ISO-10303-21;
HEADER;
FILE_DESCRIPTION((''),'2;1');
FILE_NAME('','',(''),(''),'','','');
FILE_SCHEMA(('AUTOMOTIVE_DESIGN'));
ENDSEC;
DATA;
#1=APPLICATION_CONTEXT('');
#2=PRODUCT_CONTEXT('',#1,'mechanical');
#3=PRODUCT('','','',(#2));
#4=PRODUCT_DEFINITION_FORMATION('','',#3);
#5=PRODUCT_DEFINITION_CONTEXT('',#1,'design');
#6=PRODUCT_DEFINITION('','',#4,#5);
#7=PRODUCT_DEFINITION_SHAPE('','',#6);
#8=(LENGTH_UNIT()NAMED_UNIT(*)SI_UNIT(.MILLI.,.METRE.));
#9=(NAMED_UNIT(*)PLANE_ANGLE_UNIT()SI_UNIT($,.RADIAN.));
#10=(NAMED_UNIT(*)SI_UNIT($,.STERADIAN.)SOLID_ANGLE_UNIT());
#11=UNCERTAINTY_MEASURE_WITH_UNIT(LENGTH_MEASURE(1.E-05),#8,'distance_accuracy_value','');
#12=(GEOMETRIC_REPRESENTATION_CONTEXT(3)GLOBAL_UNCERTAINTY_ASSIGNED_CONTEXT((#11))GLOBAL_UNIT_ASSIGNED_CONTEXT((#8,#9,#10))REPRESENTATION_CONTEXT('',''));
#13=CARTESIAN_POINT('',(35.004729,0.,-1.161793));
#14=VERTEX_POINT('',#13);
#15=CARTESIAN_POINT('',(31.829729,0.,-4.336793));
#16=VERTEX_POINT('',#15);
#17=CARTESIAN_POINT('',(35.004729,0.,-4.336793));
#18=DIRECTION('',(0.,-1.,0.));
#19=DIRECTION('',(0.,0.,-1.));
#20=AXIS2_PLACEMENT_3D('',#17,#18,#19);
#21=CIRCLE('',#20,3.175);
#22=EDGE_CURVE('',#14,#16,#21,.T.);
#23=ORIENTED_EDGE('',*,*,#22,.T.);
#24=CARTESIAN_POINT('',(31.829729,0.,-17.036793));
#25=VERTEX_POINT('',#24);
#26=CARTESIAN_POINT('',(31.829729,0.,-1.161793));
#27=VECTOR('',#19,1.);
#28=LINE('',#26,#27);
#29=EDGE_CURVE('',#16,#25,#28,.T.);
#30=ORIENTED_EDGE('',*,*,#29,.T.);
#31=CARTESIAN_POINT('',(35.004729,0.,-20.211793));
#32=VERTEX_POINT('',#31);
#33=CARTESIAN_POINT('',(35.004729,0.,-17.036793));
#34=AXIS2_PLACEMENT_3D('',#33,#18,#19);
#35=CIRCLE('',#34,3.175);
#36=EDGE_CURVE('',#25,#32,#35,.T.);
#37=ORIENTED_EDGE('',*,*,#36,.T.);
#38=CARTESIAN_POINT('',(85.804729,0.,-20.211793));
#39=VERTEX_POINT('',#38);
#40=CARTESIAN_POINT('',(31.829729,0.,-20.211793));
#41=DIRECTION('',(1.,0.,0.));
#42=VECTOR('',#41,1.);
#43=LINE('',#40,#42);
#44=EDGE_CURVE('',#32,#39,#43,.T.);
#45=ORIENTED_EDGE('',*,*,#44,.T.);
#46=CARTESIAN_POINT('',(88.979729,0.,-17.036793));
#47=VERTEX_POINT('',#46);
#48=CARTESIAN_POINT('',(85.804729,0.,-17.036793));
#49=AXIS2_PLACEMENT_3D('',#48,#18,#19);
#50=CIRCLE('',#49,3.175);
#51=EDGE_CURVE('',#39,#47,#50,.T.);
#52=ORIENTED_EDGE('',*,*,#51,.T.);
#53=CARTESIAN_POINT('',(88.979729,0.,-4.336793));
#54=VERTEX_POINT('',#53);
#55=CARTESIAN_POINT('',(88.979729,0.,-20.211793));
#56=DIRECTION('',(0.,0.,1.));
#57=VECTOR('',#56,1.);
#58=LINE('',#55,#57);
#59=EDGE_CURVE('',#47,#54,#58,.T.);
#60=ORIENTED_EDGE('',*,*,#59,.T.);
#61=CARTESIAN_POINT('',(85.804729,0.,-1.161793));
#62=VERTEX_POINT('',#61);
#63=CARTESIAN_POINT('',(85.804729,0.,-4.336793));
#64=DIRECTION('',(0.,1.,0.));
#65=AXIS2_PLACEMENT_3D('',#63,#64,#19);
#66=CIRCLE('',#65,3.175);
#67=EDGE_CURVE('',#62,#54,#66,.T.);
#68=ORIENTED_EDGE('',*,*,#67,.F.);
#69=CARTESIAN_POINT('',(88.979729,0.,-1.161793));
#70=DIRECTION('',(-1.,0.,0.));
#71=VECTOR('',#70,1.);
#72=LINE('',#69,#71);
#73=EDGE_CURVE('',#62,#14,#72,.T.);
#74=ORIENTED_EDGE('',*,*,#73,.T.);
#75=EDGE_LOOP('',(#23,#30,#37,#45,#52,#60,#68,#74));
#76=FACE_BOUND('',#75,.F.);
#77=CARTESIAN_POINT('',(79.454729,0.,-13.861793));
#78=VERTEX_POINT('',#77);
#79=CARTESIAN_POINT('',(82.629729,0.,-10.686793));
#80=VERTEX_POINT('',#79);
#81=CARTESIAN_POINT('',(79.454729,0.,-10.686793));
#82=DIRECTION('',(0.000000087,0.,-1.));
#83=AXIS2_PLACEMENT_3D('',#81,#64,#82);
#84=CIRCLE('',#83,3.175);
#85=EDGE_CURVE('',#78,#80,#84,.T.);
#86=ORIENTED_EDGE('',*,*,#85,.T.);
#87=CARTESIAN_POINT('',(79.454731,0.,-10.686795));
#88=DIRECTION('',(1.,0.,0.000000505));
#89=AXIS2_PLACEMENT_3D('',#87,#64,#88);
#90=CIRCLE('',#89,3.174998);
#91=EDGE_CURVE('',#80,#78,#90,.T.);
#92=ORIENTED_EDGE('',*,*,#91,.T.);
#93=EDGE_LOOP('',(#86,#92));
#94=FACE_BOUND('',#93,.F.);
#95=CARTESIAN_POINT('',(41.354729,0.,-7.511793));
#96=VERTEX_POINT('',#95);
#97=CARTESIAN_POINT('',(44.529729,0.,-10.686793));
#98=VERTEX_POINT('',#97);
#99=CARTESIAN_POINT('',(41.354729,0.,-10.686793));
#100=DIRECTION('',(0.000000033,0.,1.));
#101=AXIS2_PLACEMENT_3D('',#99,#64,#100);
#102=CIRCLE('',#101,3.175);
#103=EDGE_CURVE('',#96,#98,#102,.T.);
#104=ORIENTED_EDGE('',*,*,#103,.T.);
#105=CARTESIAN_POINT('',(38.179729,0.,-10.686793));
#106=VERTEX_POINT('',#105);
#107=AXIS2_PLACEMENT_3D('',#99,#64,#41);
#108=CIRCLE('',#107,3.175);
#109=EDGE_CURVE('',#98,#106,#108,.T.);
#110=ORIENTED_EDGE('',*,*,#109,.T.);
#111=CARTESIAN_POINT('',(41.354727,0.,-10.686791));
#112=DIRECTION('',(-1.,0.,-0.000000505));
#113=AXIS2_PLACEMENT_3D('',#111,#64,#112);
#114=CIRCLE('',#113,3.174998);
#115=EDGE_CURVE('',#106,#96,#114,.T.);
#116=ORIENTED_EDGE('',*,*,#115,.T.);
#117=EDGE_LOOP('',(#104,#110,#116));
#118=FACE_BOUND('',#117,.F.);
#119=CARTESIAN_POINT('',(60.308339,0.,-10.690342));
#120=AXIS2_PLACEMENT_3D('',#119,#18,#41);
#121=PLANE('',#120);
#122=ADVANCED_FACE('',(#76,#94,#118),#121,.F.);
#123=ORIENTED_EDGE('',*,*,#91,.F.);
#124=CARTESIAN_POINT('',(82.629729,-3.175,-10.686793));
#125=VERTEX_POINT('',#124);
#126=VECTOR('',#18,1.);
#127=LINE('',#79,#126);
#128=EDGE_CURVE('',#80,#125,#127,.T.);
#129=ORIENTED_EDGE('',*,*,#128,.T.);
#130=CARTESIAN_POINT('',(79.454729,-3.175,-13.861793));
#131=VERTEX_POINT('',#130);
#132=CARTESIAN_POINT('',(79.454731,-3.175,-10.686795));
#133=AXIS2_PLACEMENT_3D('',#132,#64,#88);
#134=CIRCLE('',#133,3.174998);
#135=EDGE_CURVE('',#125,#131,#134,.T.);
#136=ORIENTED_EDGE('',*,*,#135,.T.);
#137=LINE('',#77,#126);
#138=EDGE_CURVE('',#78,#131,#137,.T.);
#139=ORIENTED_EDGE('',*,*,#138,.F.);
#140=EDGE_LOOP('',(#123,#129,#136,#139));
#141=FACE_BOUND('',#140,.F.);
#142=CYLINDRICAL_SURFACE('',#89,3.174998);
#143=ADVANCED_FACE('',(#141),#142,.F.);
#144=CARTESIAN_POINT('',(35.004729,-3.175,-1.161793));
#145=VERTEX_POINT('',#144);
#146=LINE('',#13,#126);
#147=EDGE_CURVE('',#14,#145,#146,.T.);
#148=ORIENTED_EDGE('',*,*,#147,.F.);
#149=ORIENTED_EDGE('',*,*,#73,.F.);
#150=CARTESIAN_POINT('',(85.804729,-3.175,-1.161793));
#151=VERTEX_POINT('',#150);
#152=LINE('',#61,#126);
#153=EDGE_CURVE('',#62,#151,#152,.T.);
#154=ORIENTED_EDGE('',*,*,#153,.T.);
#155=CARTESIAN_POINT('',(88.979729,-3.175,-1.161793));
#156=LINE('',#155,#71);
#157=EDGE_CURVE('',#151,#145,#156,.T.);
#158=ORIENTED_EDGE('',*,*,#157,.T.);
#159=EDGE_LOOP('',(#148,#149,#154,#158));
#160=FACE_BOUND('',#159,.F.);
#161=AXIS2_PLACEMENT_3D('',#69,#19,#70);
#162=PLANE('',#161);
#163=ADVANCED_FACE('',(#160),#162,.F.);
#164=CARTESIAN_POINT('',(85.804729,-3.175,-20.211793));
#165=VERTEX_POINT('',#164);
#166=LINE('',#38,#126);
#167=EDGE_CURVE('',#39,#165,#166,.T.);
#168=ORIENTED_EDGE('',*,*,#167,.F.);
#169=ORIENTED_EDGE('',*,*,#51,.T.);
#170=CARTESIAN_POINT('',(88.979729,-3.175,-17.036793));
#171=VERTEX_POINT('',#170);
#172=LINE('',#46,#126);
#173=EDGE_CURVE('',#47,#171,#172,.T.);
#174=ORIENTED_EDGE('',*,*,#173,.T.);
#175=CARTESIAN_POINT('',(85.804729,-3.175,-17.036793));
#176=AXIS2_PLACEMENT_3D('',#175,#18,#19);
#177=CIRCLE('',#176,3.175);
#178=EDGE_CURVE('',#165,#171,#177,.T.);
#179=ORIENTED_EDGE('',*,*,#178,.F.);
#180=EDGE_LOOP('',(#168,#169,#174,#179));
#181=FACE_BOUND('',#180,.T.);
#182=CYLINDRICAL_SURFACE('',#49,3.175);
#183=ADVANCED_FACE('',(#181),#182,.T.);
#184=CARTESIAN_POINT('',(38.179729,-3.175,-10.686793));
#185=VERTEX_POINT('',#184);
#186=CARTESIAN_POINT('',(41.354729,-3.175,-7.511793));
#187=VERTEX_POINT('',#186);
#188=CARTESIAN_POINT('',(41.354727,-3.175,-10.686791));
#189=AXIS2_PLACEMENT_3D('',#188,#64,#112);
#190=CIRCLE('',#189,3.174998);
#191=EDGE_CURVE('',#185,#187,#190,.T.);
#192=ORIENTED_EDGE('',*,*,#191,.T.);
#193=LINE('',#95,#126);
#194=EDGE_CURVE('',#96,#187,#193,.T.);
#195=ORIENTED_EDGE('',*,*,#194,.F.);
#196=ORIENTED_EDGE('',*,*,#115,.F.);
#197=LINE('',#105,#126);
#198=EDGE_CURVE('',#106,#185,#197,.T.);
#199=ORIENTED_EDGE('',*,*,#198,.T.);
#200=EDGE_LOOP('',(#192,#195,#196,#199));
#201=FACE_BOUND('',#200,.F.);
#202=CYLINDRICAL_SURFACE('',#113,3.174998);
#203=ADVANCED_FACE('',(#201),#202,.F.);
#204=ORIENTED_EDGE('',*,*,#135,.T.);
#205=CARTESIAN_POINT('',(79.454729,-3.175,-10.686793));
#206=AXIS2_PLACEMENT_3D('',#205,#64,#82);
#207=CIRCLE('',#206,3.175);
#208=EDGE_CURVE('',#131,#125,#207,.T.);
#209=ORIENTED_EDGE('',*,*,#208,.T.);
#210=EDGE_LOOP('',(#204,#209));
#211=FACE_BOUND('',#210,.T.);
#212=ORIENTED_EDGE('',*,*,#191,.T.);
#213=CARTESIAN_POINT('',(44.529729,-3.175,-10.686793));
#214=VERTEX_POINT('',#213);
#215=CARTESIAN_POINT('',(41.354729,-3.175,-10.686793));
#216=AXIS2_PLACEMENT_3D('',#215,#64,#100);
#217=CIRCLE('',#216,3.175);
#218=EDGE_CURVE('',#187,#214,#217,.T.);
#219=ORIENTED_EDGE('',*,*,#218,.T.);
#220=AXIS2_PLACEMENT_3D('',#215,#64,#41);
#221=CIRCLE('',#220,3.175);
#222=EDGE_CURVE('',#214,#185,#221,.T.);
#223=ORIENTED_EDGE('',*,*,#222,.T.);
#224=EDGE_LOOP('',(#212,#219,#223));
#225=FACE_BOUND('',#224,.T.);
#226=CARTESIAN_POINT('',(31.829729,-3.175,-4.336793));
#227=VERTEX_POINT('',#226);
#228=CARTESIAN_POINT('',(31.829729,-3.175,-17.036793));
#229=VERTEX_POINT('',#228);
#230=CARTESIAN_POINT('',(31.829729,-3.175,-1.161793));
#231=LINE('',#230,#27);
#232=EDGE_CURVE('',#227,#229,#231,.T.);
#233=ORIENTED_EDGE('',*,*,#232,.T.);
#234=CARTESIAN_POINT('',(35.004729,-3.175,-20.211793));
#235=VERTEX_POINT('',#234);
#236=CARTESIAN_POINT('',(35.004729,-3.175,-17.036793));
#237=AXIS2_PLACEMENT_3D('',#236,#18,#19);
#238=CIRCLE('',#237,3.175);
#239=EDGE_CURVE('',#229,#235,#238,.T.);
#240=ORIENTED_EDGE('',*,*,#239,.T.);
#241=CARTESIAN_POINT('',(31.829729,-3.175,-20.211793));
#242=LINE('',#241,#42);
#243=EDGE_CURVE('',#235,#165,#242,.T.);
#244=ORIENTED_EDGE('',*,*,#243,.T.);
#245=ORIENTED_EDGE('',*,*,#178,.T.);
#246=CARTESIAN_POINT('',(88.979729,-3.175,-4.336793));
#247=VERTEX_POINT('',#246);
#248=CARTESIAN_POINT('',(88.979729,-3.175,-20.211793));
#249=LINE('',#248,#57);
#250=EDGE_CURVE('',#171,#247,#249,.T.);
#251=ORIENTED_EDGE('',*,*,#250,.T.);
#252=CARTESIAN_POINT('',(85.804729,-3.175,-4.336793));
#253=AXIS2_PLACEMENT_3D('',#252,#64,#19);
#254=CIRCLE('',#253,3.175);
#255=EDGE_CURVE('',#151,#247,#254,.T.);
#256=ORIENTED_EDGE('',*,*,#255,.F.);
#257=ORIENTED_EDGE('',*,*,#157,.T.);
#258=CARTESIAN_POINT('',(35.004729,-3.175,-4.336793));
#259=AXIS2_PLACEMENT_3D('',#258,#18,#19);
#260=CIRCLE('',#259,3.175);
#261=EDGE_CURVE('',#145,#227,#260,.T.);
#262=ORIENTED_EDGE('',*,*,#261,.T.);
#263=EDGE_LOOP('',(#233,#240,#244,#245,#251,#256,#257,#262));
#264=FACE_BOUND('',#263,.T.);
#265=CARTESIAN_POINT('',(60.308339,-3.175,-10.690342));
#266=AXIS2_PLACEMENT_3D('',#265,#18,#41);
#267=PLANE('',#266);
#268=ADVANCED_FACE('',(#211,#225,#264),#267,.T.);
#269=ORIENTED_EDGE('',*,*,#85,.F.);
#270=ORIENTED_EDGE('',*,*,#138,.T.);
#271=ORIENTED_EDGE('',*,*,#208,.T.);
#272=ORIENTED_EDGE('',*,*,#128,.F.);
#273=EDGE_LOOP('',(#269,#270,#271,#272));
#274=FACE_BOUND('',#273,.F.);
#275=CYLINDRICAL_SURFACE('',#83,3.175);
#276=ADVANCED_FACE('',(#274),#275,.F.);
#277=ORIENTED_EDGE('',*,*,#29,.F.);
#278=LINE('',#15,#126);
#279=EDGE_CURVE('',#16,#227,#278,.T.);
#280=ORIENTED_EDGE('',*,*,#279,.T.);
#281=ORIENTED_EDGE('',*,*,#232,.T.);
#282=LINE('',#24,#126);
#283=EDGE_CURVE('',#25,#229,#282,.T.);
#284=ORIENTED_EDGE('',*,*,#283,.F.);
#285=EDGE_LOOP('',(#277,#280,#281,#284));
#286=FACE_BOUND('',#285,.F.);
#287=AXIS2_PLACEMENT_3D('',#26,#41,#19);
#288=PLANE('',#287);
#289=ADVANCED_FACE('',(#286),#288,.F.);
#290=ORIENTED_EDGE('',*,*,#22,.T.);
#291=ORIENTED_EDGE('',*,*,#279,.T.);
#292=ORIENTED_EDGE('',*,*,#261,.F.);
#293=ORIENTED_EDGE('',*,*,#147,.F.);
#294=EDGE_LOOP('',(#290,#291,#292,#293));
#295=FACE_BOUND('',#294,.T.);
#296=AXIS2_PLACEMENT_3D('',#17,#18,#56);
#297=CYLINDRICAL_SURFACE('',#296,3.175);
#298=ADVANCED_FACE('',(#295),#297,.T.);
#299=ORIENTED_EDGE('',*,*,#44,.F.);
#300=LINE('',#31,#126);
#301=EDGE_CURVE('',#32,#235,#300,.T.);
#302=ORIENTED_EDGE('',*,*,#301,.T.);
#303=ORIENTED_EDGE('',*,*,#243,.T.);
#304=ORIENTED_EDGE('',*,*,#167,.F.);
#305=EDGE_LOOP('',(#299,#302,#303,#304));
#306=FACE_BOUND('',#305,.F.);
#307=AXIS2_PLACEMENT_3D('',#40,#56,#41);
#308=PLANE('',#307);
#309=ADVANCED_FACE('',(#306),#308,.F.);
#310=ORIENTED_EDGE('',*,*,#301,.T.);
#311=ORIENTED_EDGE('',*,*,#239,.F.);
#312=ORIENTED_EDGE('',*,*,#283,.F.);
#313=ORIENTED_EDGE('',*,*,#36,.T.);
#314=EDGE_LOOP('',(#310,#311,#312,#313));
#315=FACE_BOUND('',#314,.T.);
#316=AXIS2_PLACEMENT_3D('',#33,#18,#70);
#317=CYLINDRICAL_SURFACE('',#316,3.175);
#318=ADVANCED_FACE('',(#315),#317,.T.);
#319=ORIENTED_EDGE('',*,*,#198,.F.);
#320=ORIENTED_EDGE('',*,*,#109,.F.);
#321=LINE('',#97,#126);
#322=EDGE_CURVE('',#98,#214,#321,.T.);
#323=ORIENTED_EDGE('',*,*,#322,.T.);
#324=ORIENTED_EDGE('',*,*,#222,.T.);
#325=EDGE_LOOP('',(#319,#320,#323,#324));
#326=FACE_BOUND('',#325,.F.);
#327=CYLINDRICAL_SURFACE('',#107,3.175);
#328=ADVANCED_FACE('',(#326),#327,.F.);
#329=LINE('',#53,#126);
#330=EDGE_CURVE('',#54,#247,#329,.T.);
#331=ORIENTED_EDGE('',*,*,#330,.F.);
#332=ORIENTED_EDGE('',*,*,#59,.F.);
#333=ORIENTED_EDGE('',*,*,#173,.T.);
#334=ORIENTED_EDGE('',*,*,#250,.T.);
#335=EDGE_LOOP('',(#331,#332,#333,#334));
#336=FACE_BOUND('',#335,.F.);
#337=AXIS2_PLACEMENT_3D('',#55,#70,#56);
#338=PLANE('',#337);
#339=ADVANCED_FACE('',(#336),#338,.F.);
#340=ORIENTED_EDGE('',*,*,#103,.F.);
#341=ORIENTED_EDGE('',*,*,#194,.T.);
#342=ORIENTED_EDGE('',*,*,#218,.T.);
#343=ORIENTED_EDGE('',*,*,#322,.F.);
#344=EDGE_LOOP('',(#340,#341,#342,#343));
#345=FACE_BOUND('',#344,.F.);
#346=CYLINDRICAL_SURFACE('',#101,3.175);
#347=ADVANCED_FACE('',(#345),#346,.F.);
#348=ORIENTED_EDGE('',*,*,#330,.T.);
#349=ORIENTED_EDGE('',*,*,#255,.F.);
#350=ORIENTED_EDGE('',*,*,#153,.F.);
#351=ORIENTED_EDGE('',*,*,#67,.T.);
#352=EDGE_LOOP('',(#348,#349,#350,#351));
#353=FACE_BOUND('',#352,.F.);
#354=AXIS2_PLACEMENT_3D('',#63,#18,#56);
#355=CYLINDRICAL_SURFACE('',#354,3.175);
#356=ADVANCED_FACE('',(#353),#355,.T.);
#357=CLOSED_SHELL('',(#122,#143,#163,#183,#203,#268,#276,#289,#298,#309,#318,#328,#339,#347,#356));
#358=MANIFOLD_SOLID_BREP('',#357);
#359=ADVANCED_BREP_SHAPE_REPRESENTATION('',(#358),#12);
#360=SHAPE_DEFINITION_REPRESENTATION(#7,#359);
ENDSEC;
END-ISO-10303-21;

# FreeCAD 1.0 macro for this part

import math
import FreeCAD as App
import Part
import Sketcher

V = App.Vector
Q = App.Units.Quantity


def edges_at(feature, points):
    """Names of the edges that pass closest to the given points."""
    edges = feature.Shape.Edges
    near = lambda p: min(range(len(edges)), key=lambda i: edges[i].distToShape(Part.Vertex(*p))[0])
    return sorted({f"Edge{near(p) + 1}" for p in points})

doc = App.newDocument("Part")
params = doc.addObject("Spreadsheet::Sheet", "Params")
for row, (alias, value) in enumerate([
    ("sketch1_radius", "0.125 in"),
    ("sketch1_width", "2.25 in"),
    ("sketch1_height", "0.75 in"),
    ("pad1_length", "0.125 in"),
    ("fillet_radius", "0.125 in"),
], start=1):
    params.set(f"A{row}", alias)
    params.set(f"B{row}", "=" + value)
    params.setAlias(f"B{row}", alias)

body = doc.addObject("PartDesign::Body", "Body")

sketch1 = body.newObject("Sketcher::SketchObject", "Sketch")
sketch1.AttachmentSupport = (doc.getObject("XZ_Plane"), [""])
sketch1.MapMode = "FlatFace"
sketch1.addGeometry(Part.LineSegment(V(89, -1.2, 0), V(31.8, -1.2, 0)), False)
sketch1.addGeometry(Part.LineSegment(V(31.8, -1.2, 0), V(31.8, -20.2, 0)), False)
sketch1.addGeometry(Part.LineSegment(V(31.8, -20.2, 0), V(89, -20.2, 0)), False)
sketch1.addGeometry(Part.LineSegment(V(89, -20.2, 0), V(89, -1.2, 0)), False)
sketch1.addGeometry(Part.ArcOfCircle(Part.Circle(V(79.5, -10.7, 0), V(0, 0, 1), 3.2), math.radians(0), math.radians(270)), False)
sketch1.addGeometry(Part.ArcOfCircle(Part.Circle(V(79.5, -10.7, 0), V(0, 0, 1), 3.2), math.radians(-90), math.radians(0)), False)
sketch1.addGeometry(Part.ArcOfCircle(Part.Circle(V(41.4, -10.7, 0), V(0, 0, 1), 3.2), math.radians(0), math.radians(90)), False)
sketch1.addGeometry(Part.ArcOfCircle(Part.Circle(V(41.4, -10.7, 0), V(0, 0, 1), 3.2), math.radians(180), math.radians(360)), False)
sketch1.addGeometry(Part.ArcOfCircle(Part.Circle(V(41.4, -10.7, 0), V(0, 0, 1), 3.2), math.radians(90), math.radians(180)), False)
sketch1.addConstraint(Sketcher.Constraint("Coincident", 0, 2, 1, 1))
sketch1.addConstraint(Sketcher.Constraint("Coincident", 1, 2, 2, 1))
sketch1.addConstraint(Sketcher.Constraint("Coincident", 2, 2, 3, 1))
sketch1.addConstraint(Sketcher.Constraint("Coincident", 3, 2, 0, 1))
sketch1.addConstraint(Sketcher.Constraint("Tangent", 4, 1, 5, 2))
sketch1.addConstraint(Sketcher.Constraint("Coincident", 5, 1, 4, 2))
sketch1.addConstraint(Sketcher.Constraint("Tangent", 6, 1, 7, 2))
sketch1.addConstraint(Sketcher.Constraint("Tangent", 7, 1, 8, 2))
sketch1.addConstraint(Sketcher.Constraint("Tangent", 8, 1, 6, 2))
sketch1.addConstraint(Sketcher.Constraint("Horizontal", 0))
sketch1.addConstraint(Sketcher.Constraint("Vertical", 1))
sketch1.addConstraint(Sketcher.Constraint("Horizontal", 2))
sketch1.addConstraint(Sketcher.Constraint("Vertical", 3))
sketch1.addConstraint(Sketcher.Constraint("Equal", 5, 6))
sketch1.addConstraint(Sketcher.Constraint("Horizontal", 5, 3, 6, 3))
sketch1.addConstraint(Sketcher.Constraint("Horizontal", 8, 3, 4, 1))
sketch1.addConstraint(Sketcher.Constraint("Horizontal", 4, 1, 6, 1))
sketch1.addConstraint(Sketcher.Constraint("Horizontal", 6, 1, 7, 1))
sketch1.addConstraint(Sketcher.Constraint("Vertical", 4, 3, 5, 1))
sketch1.addConstraint(Sketcher.Constraint("Vertical", 7, 3, 8, 1))
sketch1.addConstraint(Sketcher.Constraint("Radius", 4, Q("0.125 in")))
sketch1.addConstraint(Sketcher.Constraint("DistanceX", 0, 2, 0, 1, Q("2.25 in")))
sketch1.addConstraint(Sketcher.Constraint("DistanceY", 1, 2, 1, 1, Q("0.75 in")))
sketch1.addConstraint(Sketcher.Constraint("DistanceX", 6, 3, 4, 3, Q("1.5 in")))
sketch1.addConstraint(Sketcher.Constraint("DistanceY", 5, 1, 3, 2, Q("0.5 in")))
sketch1.addConstraint(Sketcher.Constraint("DistanceX", 0, 2, 6, 1, Q("0.5 in")))
sketch1.addConstraint(Sketcher.Constraint("DistanceX", -1, 1, 4, 3, 79.454729))
sketch1.addConstraint(Sketcher.Constraint("DistanceY", 8, 3, -1, 1, 10.686791))
sketch1.setExpression("Constraints[20]", "Params.sketch1_radius")
sketch1.setExpression("Constraints[21]", "Params.sketch1_width")
sketch1.setExpression("Constraints[22]", "Params.sketch1_height")
pad1 = body.newObject("PartDesign::Pad", "Pad")
pad1.Profile = sketch1
pad1.setExpression("Length", "Params.pad1_length")
doc.recompute()

fillet = body.newObject("PartDesign::Fillet", "Fillet")
fillet.Base = (pad1, edges_at(pad1, [
    (31.83, -1.587, -1.162),
    (31.83, -1.587, -20.212),
    (88.98, -1.587, -20.212),
    (88.98, -1.587, -1.162),
]))
fillet.setExpression("Radius", "Params.fillet_radius")

doc.recompute()
